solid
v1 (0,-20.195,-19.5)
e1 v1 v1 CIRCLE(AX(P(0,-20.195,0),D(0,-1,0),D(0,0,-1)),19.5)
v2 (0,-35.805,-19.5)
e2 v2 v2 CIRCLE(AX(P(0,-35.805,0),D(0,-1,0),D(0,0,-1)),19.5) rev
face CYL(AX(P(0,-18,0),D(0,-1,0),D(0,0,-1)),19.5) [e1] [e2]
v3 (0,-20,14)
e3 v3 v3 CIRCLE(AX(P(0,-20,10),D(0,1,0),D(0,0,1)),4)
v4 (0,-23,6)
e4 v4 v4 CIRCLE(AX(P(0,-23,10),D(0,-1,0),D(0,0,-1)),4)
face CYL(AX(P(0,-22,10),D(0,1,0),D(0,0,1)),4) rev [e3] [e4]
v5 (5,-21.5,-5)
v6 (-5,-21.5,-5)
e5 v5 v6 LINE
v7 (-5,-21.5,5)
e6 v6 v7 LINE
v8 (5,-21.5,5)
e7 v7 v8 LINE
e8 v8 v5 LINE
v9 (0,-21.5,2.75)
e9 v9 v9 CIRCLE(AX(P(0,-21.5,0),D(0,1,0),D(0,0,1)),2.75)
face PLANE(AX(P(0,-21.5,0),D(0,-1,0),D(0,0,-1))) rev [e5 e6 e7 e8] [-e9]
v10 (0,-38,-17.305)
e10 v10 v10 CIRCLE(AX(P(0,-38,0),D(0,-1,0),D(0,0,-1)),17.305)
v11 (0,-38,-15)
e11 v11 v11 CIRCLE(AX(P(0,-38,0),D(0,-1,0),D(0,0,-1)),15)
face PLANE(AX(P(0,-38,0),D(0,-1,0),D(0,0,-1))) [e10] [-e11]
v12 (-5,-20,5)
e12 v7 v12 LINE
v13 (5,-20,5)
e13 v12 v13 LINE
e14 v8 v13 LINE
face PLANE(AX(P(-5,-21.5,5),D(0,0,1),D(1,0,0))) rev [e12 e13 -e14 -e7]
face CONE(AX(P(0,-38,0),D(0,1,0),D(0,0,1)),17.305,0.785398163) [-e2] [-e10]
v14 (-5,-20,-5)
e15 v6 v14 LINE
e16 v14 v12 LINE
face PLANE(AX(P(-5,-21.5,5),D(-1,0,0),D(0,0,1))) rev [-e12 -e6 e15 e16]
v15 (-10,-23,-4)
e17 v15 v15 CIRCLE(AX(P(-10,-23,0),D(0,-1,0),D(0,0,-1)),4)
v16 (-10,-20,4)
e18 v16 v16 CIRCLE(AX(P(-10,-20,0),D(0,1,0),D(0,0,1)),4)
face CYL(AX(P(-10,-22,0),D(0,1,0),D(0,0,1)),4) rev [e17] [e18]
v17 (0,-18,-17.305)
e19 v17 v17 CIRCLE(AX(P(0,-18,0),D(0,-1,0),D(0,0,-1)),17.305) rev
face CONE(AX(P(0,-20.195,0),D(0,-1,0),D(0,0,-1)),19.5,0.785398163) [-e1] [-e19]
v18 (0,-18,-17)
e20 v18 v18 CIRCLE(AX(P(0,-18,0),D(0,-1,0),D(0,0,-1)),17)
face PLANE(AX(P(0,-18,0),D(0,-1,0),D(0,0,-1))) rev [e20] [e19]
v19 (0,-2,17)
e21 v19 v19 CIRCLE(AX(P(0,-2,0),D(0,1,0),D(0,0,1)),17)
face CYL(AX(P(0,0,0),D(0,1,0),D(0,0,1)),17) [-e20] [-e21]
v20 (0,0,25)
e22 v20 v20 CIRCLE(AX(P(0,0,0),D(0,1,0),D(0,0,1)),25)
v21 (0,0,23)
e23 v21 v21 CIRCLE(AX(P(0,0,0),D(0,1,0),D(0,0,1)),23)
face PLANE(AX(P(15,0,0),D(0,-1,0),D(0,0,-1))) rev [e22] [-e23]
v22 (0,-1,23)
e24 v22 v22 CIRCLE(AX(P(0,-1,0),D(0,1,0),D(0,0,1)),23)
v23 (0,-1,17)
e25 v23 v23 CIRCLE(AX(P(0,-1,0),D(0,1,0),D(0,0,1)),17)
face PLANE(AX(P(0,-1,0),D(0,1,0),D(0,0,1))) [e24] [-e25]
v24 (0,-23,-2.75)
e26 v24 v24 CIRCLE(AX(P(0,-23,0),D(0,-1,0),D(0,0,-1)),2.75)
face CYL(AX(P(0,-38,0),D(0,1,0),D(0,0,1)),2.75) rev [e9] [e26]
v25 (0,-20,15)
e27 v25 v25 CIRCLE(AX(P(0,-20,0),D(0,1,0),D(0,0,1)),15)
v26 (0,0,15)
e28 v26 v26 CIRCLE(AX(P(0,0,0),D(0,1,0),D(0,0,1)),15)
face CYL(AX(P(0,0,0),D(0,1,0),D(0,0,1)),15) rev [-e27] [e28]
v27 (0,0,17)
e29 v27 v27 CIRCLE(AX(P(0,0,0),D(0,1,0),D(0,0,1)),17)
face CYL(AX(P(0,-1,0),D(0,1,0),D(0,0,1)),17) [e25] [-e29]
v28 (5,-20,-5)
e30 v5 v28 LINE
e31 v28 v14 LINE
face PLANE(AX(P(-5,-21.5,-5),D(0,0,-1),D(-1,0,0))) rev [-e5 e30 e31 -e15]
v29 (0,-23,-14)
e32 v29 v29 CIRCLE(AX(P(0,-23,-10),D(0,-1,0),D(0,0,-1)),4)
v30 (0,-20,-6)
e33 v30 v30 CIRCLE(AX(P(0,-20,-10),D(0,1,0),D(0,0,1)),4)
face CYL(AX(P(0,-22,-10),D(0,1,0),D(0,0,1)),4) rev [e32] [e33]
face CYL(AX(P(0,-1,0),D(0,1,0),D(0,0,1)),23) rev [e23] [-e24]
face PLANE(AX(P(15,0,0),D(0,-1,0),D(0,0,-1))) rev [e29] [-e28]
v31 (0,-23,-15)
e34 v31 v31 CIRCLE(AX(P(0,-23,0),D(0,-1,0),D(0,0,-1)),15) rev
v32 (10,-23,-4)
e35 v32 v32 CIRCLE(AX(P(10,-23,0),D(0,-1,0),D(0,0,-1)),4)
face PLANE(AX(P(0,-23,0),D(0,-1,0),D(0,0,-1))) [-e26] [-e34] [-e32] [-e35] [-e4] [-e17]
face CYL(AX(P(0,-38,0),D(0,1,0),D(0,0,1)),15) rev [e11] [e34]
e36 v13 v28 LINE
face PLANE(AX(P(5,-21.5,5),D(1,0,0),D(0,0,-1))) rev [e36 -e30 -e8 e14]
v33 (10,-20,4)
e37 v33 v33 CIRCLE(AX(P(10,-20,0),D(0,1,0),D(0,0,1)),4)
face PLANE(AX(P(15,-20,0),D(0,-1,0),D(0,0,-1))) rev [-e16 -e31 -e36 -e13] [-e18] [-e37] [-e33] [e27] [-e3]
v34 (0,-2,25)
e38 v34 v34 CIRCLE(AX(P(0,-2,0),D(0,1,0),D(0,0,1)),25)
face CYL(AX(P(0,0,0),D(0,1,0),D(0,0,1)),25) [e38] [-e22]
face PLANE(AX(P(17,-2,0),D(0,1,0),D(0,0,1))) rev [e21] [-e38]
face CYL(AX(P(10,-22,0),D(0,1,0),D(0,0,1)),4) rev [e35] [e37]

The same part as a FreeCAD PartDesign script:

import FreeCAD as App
import Part
import Sketcher
Q = App.Units.Quantity


def edges_at(feature, points):
    """Names of the edges that pass closest to the given points."""
    edges = feature.Shape.Edges
    near = lambda p: min(range(len(edges)), key=lambda i: edges[i].distToShape(Part.Vertex(*p))[0])
    return sorted({f"Edge{near(p) + 1}" for p in points})


def add_polygon(sketch, points):
    """Adds a closed chain of lines whose ends are joined by coincident constraints."""
    first, n = sketch.GeometryCount, len(points)
    for a, b in zip(points, points[1:] + points[:1]):
        sketch.addGeometry(Part.LineSegment(App.Vector(*a, 0), App.Vector(*b, 0)), False)
    for i in range(n):
        sketch.addConstraint(Sketcher.Constraint("Coincident", first + i, 2, first + (i + 1) % n, 1))

doc = App.newDocument("Part")
body = doc.addObject("PartDesign::Body", "Body")

# Sketch on XY plane
sketch1 = body.newObject("Sketcher::SketchObject", "Sketch")
sketch1.AttachmentSupport = (doc.getObject("XY_Plane"), [""])
sketch1.MapMode = "FlatFace"
add_polygon(sketch1, [(15, 0), (15, -20), (0, -20), (0, -22), (17, -22), (17, -2), (25, -2), (25, 0)])  # lines 0-7
sketch1.addConstraint(Sketcher.Constraint("Vertical", 0))
sketch1.addConstraint(Sketcher.Constraint("Horizontal", 1))
sketch1.addConstraint(Sketcher.Constraint("Vertical", 2))
sketch1.addConstraint(Sketcher.Constraint("Horizontal", 3))
sketch1.addConstraint(Sketcher.Constraint("Vertical", 4))
sketch1.addConstraint(Sketcher.Constraint("Horizontal", 5))
sketch1.addConstraint(Sketcher.Constraint("Vertical", 6))
sketch1.addConstraint(Sketcher.Constraint("Horizontal", 7))
sketch1.addConstraint(Sketcher.Constraint("PointOnObject", 1, 2, -2))
sketch1.addConstraint(Sketcher.Constraint("PointOnObject", 6, 2, -1))
sketch1.addConstraint(Sketcher.Constraint("Equal", 0, 4))
sketch1.addConstraint(Sketcher.Constraint("DistanceX", 1, 2, 1, 1, Q("15 mm")))
sketch1.addConstraint(Sketcher.Constraint("DistanceX", 3, 1, 3, 2, Q("17 mm")))
sketch1.addConstraint(Sketcher.Constraint("DistanceX", 5, 1, 5, 2, Q("8 mm")))
sketch1.addConstraint(Sketcher.Constraint("DistanceY", 0, 2, 0, 1, Q("20 mm")))
sketch1.addConstraint(Sketcher.Constraint("DistanceY", 2, 2, 2, 1, Q("2 mm")))
revolution = body.newObject("PartDesign::Revolution", "Revolution")
revolution.Profile = sketch1
revolution.ReferenceAxis = (sketch1, ["V_Axis"])
revolution.Angle = 360

# Sketch on XZ plane
sketch2 = body.newObject("Sketcher::SketchObject", "Sketch001")
sketch2.AttachmentSupport = (doc.getObject("XZ_Plane"), [""])
sketch2.MapMode = "FlatFace"
sketch2.addGeometry(Part.Circle(App.Vector(0, 0, 0), App.Vector(0, 0, 1), 23), False)
sketch2.addGeometry(Part.Circle(App.Vector(0, 0, 0), App.Vector(0, 0, 1), 17), False)
sketch2.addConstraint(Sketcher.Constraint("Coincident", 0, 3, -1, 1))
sketch2.addConstraint(Sketcher.Constraint("Coincident", 1, 3, -1, 1))
sketch2.addConstraint(Sketcher.Constraint("Diameter", 0, Q("46 mm")))
sketch2.addConstraint(Sketcher.Constraint("Diameter", 1, Q("34 mm")))
pocket1 = body.newObject("PartDesign::Pocket", "Pocket")
pocket1.Profile = sketch2
pocket1.Length = 1
pocket1.Reversed = True

# Sketch on XZ plane
sketch3 = body.newObject("Sketcher::SketchObject", "Sketch002")
sketch3.AttachmentSupport = (doc.getObject("XZ_Plane"), [""])
sketch3.MapMode = "FlatFace"
sketch3.AttachmentOffset = App.Placement(App.Vector(0, 0, 20), App.Rotation())
add_polygon(sketch3, [(-5, -5), (-5, 5), (5, 5), (5, -5)])  # lines 0-3
sketch3.addConstraint(Sketcher.Constraint("Vertical", 0))
sketch3.addConstraint(Sketcher.Constraint("Horizontal", 1))
sketch3.addConstraint(Sketcher.Constraint("Vertical", 2))
sketch3.addConstraint(Sketcher.Constraint("Horizontal", 3))
sketch3.addConstraint(Sketcher.Constraint("Symmetric", 0, 2, 2, 2, -1, 1))
sketch3.addConstraint(Sketcher.Constraint("Equal", 3, 0))
sketch3.addConstraint(Sketcher.Constraint("DistanceX", 1, 1, 1, 2, Q("10 mm")))
pocket2 = body.newObject("PartDesign::Pocket", "Pocket001")
pocket2.Profile = sketch3
pocket2.Length = 1.5
pocket2.Reversed = True

# Sketch on XZ plane
sketch4 = body.newObject("Sketcher::SketchObject", "Sketch003")
sketch4.AttachmentSupport = (doc.getObject("XZ_Plane"), [""])
sketch4.MapMode = "FlatFace"
sketch4.AttachmentOffset = App.Placement(App.Vector(0, 0, 20), App.Rotation())
sketch4.addGeometry(Part.Circle(App.Vector(0, -10, 0), App.Vector(0, 0, 1), 4), False)
sketch4.addGeometry(Part.Circle(App.Vector(10, 0, 0), App.Vector(0, 0, 1), 4), False)
sketch4.addGeometry(Part.Circle(App.Vector(0, 10, 0), App.Vector(0, 0, 1), 4), False)
sketch4.addGeometry(Part.Circle(App.Vector(-10, 0, 0), App.Vector(0, 0, 1), 4), False)
sketch4.addConstraint(Sketcher.Constraint("Equal", 0, 1))
sketch4.addConstraint(Sketcher.Constraint("Equal", 1, 2))
sketch4.addConstraint(Sketcher.Constraint("Equal", 2, 3))
sketch4.addConstraint(Sketcher.Constraint("Symmetric", 0, 3, 2, 3, -1, 1))
sketch4.addConstraint(Sketcher.Constraint("Symmetric", 1, 3, 3, 3, -1, 1))
sketch4.addConstraint(Sketcher.Constraint("PointOnObject", 0, 3, -2))
sketch4.addConstraint(Sketcher.Constraint("PointOnObject", 1, 3, -1))
sketch4.addConstraint(Sketcher.Constraint("Diameter", 0, Q("8 mm")))
sketch4.addConstraint(Sketcher.Constraint("DistanceY", 0, 3, -1, 1, Q("10 mm")))
sketch4.addConstraint(Sketcher.Constraint("DistanceX", -1, 1, 1, 3, Q("10 mm")))
pocket3 = body.newObject("PartDesign::Pocket", "Pocket002")
pocket3.Profile = sketch4
pocket3.Type = "ThroughAll"
pocket3.Reversed = True

# Sketch on XZ plane
sketch5 = body.newObject("Sketcher::SketchObject", "Sketch004")
sketch5.AttachmentSupport = (doc.getObject("XZ_Plane"), [""])
sketch5.MapMode = "FlatFace"
sketch5.AttachmentOffset = App.Placement(App.Vector(0, 0, 22), App.Rotation())
sketch5.addGeometry(Part.Circle(App.Vector(0, 0, 0), App.Vector(0, 0, 1), 17), False)
sketch5.addGeometry(Part.Circle(App.Vector(0, -10, 0), App.Vector(0, 0, 1), 4), False)
sketch5.addGeometry(Part.Circle(App.Vector(-10, 0, 0), App.Vector(0, 0, 1), 4), False)
sketch5.addGeometry(Part.Circle(App.Vector(10, 0, 0), App.Vector(0, 0, 1), 4), False)
sketch5.addGeometry(Part.Circle(App.Vector(0, 10, 0), App.Vector(0, 0, 1), 4), False)
sketch5.addConstraint(Sketcher.Constraint("Coincident", 0, 3, -1, 1))
sketch5.addConstraint(Sketcher.Constraint("Equal", 1, 2))
sketch5.addConstraint(Sketcher.Constraint("Equal", 2, 3))
sketch5.addConstraint(Sketcher.Constraint("Equal", 3, 4))
sketch5.addConstraint(Sketcher.Constraint("Symmetric", 2, 3, 3, 3, -1, 1))
sketch5.addConstraint(Sketcher.Constraint("Symmetric", 1, 3, 4, 3, -1, 1))
sketch5.addConstraint(Sketcher.Constraint("PointOnObject", 1, 3, -2))
sketch5.addConstraint(Sketcher.Constraint("PointOnObject", 2, 3, -1))
sketch5.addConstraint(Sketcher.Constraint("Diameter", 0, Q("34 mm")))
sketch5.addConstraint(Sketcher.Constraint("Diameter", 1, Q("8 mm")))
sketch5.addConstraint(Sketcher.Constraint("DistanceY", 1, 3, -1, 1, Q("10 mm")))
sketch5.addConstraint(Sketcher.Constraint("DistanceX", 2, 3, -1, 1, Q("10 mm")))
pad1 = body.newObject("PartDesign::Pad", "Pad")
pad1.Profile = sketch5
pad1.Length = 1

# Sketch on XZ plane
sketch6 = body.newObject("Sketcher::SketchObject", "Sketch005")
sketch6.AttachmentSupport = (doc.getObject("XZ_Plane"), [""])
sketch6.MapMode = "FlatFace"
sketch6.AttachmentOffset = App.Placement(App.Vector(0, 0, 23), App.Rotation())
sketch6.addGeometry(Part.Circle(App.Vector(0, 0, 0), App.Vector(0, 0, 1), 17), False)
sketch6.addGeometry(Part.Circle(App.Vector(0, 0, 0), App.Vector(0, 0, 1), 15), False)
sketch6.addConstraint(Sketcher.Constraint("Coincident", 0, 3, -1, 1))
sketch6.addConstraint(Sketcher.Constraint("Coincident", 1, 3, -1, 1))
sketch6.addConstraint(Sketcher.Constraint("Diameter", 0, Q("34 mm")))
sketch6.addConstraint(Sketcher.Constraint("Diameter", 1, Q("30 mm")))
pad2 = body.newObject("PartDesign::Pad", "Pad001")
pad2.Profile = sketch6
pad2.Length = 15

# Sketch on XZ plane
sketch7 = body.newObject("Sketcher::SketchObject", "Sketch006")
sketch7.AttachmentSupport = (doc.getObject("XZ_Plane"), [""])
sketch7.MapMode = "FlatFace"
sketch7.AttachmentOffset = App.Placement(App.Vector(0, 0, 21.5), App.Rotation())
sketch7.addGeometry(Part.Circle(App.Vector(0, 0, 0), App.Vector(0, 0, 1), 2.75), False)
sketch7.addConstraint(Sketcher.Constraint("Coincident", 0, 3, -1, 1))
sketch7.addConstraint(Sketcher.Constraint("Diameter", 0, Q("5.5 mm")))
pocket4 = body.newObject("PartDesign::Pocket", "Pocket003")
pocket4.Profile = sketch7
pocket4.Type = "ThroughAll"
pocket4.Reversed = True

# Sketch on XZ plane
sketch8 = body.newObject("Sketcher::SketchObject", "Sketch007")
sketch8.AttachmentSupport = (doc.getObject("XZ_Plane"), [""])
sketch8.MapMode = "FlatFace"
sketch8.AttachmentOffset = App.Placement(App.Vector(0, 0, 38), App.Rotation())
sketch8.addGeometry(Part.Circle(App.Vector(0, 0, 0), App.Vector(0, 0, 1), 19.5), False)
sketch8.addGeometry(Part.Circle(App.Vector(0, 0, 0), App.Vector(0, 0, 1), 17), False)
sketch8.addConstraint(Sketcher.Constraint("Coincident", 0, 3, -1, 1))
sketch8.addConstraint(Sketcher.Constraint("Coincident", 1, 3, -1, 1))
sketch8.addConstraint(Sketcher.Constraint("Diameter", 0, Q("39 mm")))
sketch8.addConstraint(Sketcher.Constraint("Diameter", 1, Q("34 mm")))
pad3 = body.newObject("PartDesign::Pad", "Pad002")
pad3.Profile = sketch8
pad3.Length = 20
pad3.Reversed = True
doc.recompute()

chamfer = body.newObject("PartDesign::Chamfer", "Chamfer")
chamfer.Base = (pad3, edges_at(pad3, [(-19.5, -18, 0), (-19.5, -38, 0)]))
chamfer.Size = 2.195

doc.recompute()
